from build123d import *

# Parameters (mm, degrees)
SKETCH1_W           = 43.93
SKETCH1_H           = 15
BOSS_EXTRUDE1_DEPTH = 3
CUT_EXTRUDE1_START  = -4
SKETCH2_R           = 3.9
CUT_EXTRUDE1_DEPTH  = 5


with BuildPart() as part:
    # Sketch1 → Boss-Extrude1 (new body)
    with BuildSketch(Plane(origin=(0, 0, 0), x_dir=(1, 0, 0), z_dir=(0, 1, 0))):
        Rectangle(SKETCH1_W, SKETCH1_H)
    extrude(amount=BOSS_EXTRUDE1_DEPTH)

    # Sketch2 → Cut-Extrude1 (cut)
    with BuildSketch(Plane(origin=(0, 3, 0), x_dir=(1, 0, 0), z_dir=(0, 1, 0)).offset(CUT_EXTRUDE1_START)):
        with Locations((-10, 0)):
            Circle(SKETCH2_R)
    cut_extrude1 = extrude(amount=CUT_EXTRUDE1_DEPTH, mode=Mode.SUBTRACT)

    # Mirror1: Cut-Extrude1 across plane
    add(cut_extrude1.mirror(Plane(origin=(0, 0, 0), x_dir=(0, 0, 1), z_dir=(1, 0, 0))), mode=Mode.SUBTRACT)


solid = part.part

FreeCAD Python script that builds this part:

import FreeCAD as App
import Part
import Sketcher
Q = App.Units.Quantity

doc = App.newDocument("Part")
body = doc.addObject("PartDesign::Body", "Body")

# Sketch on XZ plane
sketch1 = body.newObject("Sketcher::SketchObject", "Sketch")
sketch1.AttachmentSupport = (doc.getObject("XZ_Plane"), [""])
sketch1.MapMode = "FlatFace"
sketch1.addGeometry(Part.LineSegment(App.Vector(-22, -8, 0), App.Vector(-22, 8, 0)), False)
sketch1.addGeometry(Part.LineSegment(App.Vector(-22, 8, 0), App.Vector(22, 8, 0)), False)
sketch1.addGeometry(Part.LineSegment(App.Vector(22, 8, 0), App.Vector(22, -8, 0)), False)
sketch1.addGeometry(Part.LineSegment(App.Vector(22, -8, 0), App.Vector(-22, -8, 0)), False)
sketch1.addConstraint(Sketcher.Constraint("Coincident", 0, 2, 1, 1))
sketch1.addConstraint(Sketcher.Constraint("Coincident", 1, 2, 2, 1))
sketch1.addConstraint(Sketcher.Constraint("Coincident", 2, 2, 3, 1))
sketch1.addConstraint(Sketcher.Constraint("Coincident", 3, 2, 0, 1))
sketch1.addConstraint(Sketcher.Constraint("Vertical", 0))
sketch1.addConstraint(Sketcher.Constraint("Horizontal", 1))
sketch1.addConstraint(Sketcher.Constraint("Vertical", 2))
sketch1.addConstraint(Sketcher.Constraint("Horizontal", 3))
sketch1.addConstraint(Sketcher.Constraint("Symmetric", 0, 2, 2, 2, -1, 1))
sketch1.addConstraint(Sketcher.Constraint("DistanceY", 0, 1, 0, 2, Q("15 mm")))
sketch1.addConstraint(Sketcher.Constraint("DistanceX", 1, 1, 1, 2, Q("43.93 mm")))
pad1 = body.newObject("PartDesign::Pad", "Pad")
pad1.Profile = sketch1
pad1.Length = 3
pad1.Reversed = True

# Sketch on XZ plane
sketch2 = body.newObject("Sketcher::SketchObject", "Sketch001")
sketch2.AttachmentSupport = (doc.getObject("XZ_Plane"), [""])
sketch2.MapMode = "FlatFace"
sketch2.AttachmentOffset = App.Placement(App.Vector(0, 0, 1), App.Rotation())
sketch2.addGeometry(Part.Circle(App.Vector(-10, 0, 0), App.Vector(0, 0, 1), 3.9), False)
sketch2.addConstraint(Sketcher.Constraint("PointOnObject", 0, 3, -1))
sketch2.addConstraint(Sketcher.Constraint("Diameter", 0, Q("7.8 mm")))
sketch2.addConstraint(Sketcher.Constraint("DistanceX", 0, 3, -1, 1, Q("10 mm")))
pocket1 = body.newObject("PartDesign::Pocket", "Pocket")
pocket1.Profile = sketch2
pocket1.Length = 5
doc.recompute()

mirrored = body.newObject("PartDesign::Mirrored", "Mirrored")
mirrored.Originals = [pocket1]
mirrored.MirrorPlane = (doc.getObject("YZ_Plane"), [""])
body.Tip = mirrored

doc.recompute()
